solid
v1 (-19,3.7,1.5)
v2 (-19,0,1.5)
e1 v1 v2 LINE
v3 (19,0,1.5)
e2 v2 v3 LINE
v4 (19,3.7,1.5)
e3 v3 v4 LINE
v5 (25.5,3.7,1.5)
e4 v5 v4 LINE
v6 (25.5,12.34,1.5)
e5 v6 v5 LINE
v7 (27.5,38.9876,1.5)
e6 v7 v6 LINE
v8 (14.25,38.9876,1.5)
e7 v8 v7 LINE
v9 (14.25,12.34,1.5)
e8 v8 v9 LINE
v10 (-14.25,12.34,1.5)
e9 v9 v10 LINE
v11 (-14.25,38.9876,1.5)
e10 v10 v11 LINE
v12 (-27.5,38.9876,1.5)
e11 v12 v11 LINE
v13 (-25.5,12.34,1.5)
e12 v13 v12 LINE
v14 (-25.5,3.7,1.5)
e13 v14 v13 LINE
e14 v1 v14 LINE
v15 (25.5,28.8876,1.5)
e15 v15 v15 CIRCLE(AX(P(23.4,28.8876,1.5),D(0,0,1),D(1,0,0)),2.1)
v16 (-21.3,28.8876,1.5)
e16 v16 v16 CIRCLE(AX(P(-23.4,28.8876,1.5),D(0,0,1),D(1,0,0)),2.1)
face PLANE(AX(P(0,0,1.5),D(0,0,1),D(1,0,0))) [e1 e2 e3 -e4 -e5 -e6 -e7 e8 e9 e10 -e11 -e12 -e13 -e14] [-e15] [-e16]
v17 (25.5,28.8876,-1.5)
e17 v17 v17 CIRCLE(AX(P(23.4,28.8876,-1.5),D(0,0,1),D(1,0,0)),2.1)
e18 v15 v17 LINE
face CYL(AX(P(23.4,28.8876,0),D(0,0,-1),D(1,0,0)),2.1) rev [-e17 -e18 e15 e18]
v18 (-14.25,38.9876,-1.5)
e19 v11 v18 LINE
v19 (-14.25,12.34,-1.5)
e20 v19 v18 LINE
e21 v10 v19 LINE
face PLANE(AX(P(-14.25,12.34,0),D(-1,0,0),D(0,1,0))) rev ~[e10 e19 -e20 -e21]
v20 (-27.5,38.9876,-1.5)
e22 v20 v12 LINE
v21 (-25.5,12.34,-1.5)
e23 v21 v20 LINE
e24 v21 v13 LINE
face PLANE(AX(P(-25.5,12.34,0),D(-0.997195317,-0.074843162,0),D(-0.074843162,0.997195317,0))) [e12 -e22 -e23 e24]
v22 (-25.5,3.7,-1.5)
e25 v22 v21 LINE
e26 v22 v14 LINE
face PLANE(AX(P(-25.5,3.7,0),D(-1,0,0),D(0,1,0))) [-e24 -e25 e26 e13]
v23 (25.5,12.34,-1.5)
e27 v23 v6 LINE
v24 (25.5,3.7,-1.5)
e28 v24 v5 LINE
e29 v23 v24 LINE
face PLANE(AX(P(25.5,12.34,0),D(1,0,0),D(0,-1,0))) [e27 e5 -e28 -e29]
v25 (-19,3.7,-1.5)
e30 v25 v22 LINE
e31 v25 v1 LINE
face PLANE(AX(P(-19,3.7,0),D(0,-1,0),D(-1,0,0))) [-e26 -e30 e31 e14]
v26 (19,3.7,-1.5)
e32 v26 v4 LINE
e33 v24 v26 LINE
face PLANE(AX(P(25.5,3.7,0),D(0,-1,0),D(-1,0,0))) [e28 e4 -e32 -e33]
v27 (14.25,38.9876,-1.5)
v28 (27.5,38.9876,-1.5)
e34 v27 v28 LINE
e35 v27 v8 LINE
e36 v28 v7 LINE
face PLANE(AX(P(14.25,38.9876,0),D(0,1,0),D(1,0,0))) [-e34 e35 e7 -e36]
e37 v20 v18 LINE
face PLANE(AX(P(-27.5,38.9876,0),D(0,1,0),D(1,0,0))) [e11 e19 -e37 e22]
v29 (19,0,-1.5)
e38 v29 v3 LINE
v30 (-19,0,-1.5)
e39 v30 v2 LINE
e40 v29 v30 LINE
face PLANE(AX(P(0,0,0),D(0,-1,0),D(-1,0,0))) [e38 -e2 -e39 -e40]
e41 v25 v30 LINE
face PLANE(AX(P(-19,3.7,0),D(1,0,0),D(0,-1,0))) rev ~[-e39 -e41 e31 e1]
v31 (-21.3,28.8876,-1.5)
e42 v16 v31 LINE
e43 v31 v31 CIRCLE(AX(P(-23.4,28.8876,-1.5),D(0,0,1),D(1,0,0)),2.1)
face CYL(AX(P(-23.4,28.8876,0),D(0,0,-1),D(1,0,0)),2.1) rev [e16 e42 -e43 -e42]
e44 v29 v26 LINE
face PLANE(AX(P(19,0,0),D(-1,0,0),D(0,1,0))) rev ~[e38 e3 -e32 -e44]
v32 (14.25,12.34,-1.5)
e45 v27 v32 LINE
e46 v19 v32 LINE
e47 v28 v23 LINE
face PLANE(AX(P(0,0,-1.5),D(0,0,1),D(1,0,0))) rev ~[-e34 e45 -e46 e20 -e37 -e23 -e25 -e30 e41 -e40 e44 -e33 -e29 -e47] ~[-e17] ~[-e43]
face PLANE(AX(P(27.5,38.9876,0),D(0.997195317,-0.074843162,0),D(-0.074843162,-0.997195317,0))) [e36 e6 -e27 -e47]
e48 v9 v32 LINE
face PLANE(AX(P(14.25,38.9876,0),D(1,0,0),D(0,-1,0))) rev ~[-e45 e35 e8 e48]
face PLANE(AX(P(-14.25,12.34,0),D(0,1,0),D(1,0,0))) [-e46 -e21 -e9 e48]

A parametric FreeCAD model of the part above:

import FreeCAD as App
import Part
import Sketcher
Q = App.Units.Quantity


def add_polygon(sketch, points):
    """Adds a closed chain of lines whose ends are joined by coincident constraints."""
    first, n = sketch.GeometryCount, len(points)
    for a, b in zip(points, points[1:] + points[:1]):
        sketch.addGeometry(Part.LineSegment(App.Vector(*a, 0), App.Vector(*b, 0)), False)
    for i in range(n):
        sketch.addConstraint(Sketcher.Constraint("Coincident", first + i, 2, first + (i + 1) % n, 1))

doc = App.newDocument("Part")
params = doc.addObject("Spreadsheet::Sheet", "Params")
for row, (alias, value) in enumerate([
    ("sketch1_diameter", "4.2 mm"),
    ("sketch1_width", "38 mm"),
    ("sketch1_width2", "28.5 mm"),
    ("sketch1_height", "3.7 mm"),
    ("sketch1_height2", "8.64 mm"),
    ("pad1_length", "3 mm"),
], start=1):
    params.set(f"A{row}", alias)
    params.set(f"B{row}", "=" + value)
    params.setAlias(f"B{row}", alias)

body = doc.addObject("PartDesign::Body", "Body")

sketch1 = body.newObject("Sketcher::SketchObject", "Sketch")
sketch1.AttachmentSupport = (doc.getObject("XY_Plane"), [""])
sketch1.MapMode = "FlatFace"
add_polygon(sketch1, [(-14.25, 38.9876), (-27.5, 38.9876), (-25.5, 12.34), (-25.5, 3.7), (-19, 3.7), (-19, 0), (19, 0), (19, 3.7), (25.5, 3.7), (25.5, 12.34), (27.5, 38.9876), (14.25, 38.9876), (14.25, 12.34), (-14.25, 12.34)])
sketch1.addGeometry(Part.Circle(App.Vector(-23.4, 28.8876, 0), App.Vector(0, 0, 1), 2.1), False)
sketch1.addGeometry(Part.Circle(App.Vector(23.4, 28.8876, 0), App.Vector(0, 0, 1), 2.1), False)
sketch1.addConstraint([
    Sketcher.Constraint("Horizontal", 0),
    Sketcher.Constraint("Vertical", 2),
    Sketcher.Constraint("Horizontal", 3),
    Sketcher.Constraint("Vertical", 4),
    Sketcher.Constraint("Horizontal", 5),
    Sketcher.Constraint("Vertical", 6),
    Sketcher.Constraint("Horizontal", 7),
    Sketcher.Constraint("Vertical", 8),
    Sketcher.Constraint("Horizontal", 10),
    Sketcher.Constraint("Vertical", 11),
    Sketcher.Constraint("Horizontal", 12),
    Sketcher.Constraint("Vertical", 13),
    Sketcher.Constraint("Equal", 14, 15),
    Sketcher.Constraint("Symmetric", 4, 2, 5, 2, -1, 1),
    Sketcher.Constraint("Symmetric", 14, 3, 15, 3, -2),
    Sketcher.Constraint("Symmetric", 2, 2, 7, 2, -2),
    Sketcher.Constraint("Symmetric", 0, 2, 9, 2, -2),
    Sketcher.Constraint("Horizontal", 1, 2, 8, 2),
    Sketcher.Constraint("Horizontal", 8, 2, 11, 2),
    Sketcher.Constraint("Equal", 0, 10),
    Sketcher.Constraint("Diameter", 14, Q("4.2 mm")),
    Sketcher.Constraint("DistanceX", 5, 1, 5, 2, Q("38 mm")),
    Sketcher.Constraint("DistanceX", 12, 2, 12, 1, Q("28.5 mm")),
    Sketcher.Constraint("DistanceY", 4, 2, 4, 1, Q("3.7 mm")),
    Sketcher.Constraint("DistanceY", 2, 2, 2, 1, Q("8.64 mm")),
    Sketcher.Constraint("DistanceX", 0, 2, 14, 3, Q("4.1 mm")),
    Sketcher.Constraint("DistanceY", 14, 3, 0, 2, Q("10.1 mm")),
    Sketcher.Constraint("DistanceX", 3, 1, 3, 2, Q("6.5 mm")),
    Sketcher.Constraint("DistanceX", 0, 2, 1, 2, Q("2 mm")),
    Sketcher.Constraint("DistanceY", 11, 2, 11, 1, Q("26.6476 mm")),
])
sketch1.setExpression("Constraints[34]", "Params.sketch1_diameter")
sketch1.setExpression("Constraints[35]", "Params.sketch1_width")
sketch1.setExpression("Constraints[36]", "Params.sketch1_width2")
sketch1.setExpression("Constraints[37]", "Params.sketch1_height")
sketch1.setExpression("Constraints[38]", "Params.sketch1_height2")
pad1 = body.newObject("PartDesign::Pad", "Pad")
pad1.Profile = sketch1
pad1.setExpression("Length", "Params.pad1_length")
pad1.Midplane = True

doc.recompute()
